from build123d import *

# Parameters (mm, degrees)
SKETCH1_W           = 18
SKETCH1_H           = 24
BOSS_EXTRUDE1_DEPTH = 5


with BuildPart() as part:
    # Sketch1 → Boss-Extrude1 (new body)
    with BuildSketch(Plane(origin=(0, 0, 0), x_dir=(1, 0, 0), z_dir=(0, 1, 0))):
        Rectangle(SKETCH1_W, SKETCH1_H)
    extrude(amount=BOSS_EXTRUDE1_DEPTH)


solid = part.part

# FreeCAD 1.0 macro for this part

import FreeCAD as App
import Part
import Sketcher
Q = App.Units.Quantity

doc = App.newDocument("Part")
body = doc.addObject("PartDesign::Body", "Body")

sketch1 = doc.addObject("Sketcher::SketchObject", "Sketch")
body.addObject(sketch1)
sketch1.AttachmentSupport = (doc.XZ_Plane, [""])
sketch1.MapMode = "FlatFace"
sketch1.addGeometry([
    Part.LineSegment(App.Vector(-9, -12, 0), App.Vector(-9, 12, 0)),
    Part.LineSegment(App.Vector(-9, 12, 0), App.Vector(9, 12, 0)),
    Part.LineSegment(App.Vector(9, 12, 0), App.Vector(9, -12, 0)),
    Part.LineSegment(App.Vector(9, -12, 0), App.Vector(-9, -12, 0)),
], False)
sketch1.addConstraint([
    Sketcher.Constraint("Coincident", 0, 2, 1, 1),
    Sketcher.Constraint("Coincident", 1, 2, 2, 1),
    Sketcher.Constraint("Coincident", 2, 2, 3, 1),
    Sketcher.Constraint("Coincident", 3, 2, 0, 1),
    Sketcher.Constraint("Vertical", 0),
    Sketcher.Constraint("Horizontal", 1),
    Sketcher.Constraint("Vertical", 2),
    Sketcher.Constraint("Horizontal", 3),
    Sketcher.Constraint("Symmetric", 0, 2, 2, 2, -1, 1),
    Sketcher.Constraint("DistanceX", 1, 1, 1, 2, Q("18 mm")),
    Sketcher.Constraint("DistanceY", 0, 1, 0, 2, Q("24 mm")),
])
pad1 = doc.addObject("PartDesign::Pad", "Pad")
body.addObject(pad1)
pad1.Profile = sketch1
pad1.Length = 5
pad1.Reversed = True

doc.recompute()
